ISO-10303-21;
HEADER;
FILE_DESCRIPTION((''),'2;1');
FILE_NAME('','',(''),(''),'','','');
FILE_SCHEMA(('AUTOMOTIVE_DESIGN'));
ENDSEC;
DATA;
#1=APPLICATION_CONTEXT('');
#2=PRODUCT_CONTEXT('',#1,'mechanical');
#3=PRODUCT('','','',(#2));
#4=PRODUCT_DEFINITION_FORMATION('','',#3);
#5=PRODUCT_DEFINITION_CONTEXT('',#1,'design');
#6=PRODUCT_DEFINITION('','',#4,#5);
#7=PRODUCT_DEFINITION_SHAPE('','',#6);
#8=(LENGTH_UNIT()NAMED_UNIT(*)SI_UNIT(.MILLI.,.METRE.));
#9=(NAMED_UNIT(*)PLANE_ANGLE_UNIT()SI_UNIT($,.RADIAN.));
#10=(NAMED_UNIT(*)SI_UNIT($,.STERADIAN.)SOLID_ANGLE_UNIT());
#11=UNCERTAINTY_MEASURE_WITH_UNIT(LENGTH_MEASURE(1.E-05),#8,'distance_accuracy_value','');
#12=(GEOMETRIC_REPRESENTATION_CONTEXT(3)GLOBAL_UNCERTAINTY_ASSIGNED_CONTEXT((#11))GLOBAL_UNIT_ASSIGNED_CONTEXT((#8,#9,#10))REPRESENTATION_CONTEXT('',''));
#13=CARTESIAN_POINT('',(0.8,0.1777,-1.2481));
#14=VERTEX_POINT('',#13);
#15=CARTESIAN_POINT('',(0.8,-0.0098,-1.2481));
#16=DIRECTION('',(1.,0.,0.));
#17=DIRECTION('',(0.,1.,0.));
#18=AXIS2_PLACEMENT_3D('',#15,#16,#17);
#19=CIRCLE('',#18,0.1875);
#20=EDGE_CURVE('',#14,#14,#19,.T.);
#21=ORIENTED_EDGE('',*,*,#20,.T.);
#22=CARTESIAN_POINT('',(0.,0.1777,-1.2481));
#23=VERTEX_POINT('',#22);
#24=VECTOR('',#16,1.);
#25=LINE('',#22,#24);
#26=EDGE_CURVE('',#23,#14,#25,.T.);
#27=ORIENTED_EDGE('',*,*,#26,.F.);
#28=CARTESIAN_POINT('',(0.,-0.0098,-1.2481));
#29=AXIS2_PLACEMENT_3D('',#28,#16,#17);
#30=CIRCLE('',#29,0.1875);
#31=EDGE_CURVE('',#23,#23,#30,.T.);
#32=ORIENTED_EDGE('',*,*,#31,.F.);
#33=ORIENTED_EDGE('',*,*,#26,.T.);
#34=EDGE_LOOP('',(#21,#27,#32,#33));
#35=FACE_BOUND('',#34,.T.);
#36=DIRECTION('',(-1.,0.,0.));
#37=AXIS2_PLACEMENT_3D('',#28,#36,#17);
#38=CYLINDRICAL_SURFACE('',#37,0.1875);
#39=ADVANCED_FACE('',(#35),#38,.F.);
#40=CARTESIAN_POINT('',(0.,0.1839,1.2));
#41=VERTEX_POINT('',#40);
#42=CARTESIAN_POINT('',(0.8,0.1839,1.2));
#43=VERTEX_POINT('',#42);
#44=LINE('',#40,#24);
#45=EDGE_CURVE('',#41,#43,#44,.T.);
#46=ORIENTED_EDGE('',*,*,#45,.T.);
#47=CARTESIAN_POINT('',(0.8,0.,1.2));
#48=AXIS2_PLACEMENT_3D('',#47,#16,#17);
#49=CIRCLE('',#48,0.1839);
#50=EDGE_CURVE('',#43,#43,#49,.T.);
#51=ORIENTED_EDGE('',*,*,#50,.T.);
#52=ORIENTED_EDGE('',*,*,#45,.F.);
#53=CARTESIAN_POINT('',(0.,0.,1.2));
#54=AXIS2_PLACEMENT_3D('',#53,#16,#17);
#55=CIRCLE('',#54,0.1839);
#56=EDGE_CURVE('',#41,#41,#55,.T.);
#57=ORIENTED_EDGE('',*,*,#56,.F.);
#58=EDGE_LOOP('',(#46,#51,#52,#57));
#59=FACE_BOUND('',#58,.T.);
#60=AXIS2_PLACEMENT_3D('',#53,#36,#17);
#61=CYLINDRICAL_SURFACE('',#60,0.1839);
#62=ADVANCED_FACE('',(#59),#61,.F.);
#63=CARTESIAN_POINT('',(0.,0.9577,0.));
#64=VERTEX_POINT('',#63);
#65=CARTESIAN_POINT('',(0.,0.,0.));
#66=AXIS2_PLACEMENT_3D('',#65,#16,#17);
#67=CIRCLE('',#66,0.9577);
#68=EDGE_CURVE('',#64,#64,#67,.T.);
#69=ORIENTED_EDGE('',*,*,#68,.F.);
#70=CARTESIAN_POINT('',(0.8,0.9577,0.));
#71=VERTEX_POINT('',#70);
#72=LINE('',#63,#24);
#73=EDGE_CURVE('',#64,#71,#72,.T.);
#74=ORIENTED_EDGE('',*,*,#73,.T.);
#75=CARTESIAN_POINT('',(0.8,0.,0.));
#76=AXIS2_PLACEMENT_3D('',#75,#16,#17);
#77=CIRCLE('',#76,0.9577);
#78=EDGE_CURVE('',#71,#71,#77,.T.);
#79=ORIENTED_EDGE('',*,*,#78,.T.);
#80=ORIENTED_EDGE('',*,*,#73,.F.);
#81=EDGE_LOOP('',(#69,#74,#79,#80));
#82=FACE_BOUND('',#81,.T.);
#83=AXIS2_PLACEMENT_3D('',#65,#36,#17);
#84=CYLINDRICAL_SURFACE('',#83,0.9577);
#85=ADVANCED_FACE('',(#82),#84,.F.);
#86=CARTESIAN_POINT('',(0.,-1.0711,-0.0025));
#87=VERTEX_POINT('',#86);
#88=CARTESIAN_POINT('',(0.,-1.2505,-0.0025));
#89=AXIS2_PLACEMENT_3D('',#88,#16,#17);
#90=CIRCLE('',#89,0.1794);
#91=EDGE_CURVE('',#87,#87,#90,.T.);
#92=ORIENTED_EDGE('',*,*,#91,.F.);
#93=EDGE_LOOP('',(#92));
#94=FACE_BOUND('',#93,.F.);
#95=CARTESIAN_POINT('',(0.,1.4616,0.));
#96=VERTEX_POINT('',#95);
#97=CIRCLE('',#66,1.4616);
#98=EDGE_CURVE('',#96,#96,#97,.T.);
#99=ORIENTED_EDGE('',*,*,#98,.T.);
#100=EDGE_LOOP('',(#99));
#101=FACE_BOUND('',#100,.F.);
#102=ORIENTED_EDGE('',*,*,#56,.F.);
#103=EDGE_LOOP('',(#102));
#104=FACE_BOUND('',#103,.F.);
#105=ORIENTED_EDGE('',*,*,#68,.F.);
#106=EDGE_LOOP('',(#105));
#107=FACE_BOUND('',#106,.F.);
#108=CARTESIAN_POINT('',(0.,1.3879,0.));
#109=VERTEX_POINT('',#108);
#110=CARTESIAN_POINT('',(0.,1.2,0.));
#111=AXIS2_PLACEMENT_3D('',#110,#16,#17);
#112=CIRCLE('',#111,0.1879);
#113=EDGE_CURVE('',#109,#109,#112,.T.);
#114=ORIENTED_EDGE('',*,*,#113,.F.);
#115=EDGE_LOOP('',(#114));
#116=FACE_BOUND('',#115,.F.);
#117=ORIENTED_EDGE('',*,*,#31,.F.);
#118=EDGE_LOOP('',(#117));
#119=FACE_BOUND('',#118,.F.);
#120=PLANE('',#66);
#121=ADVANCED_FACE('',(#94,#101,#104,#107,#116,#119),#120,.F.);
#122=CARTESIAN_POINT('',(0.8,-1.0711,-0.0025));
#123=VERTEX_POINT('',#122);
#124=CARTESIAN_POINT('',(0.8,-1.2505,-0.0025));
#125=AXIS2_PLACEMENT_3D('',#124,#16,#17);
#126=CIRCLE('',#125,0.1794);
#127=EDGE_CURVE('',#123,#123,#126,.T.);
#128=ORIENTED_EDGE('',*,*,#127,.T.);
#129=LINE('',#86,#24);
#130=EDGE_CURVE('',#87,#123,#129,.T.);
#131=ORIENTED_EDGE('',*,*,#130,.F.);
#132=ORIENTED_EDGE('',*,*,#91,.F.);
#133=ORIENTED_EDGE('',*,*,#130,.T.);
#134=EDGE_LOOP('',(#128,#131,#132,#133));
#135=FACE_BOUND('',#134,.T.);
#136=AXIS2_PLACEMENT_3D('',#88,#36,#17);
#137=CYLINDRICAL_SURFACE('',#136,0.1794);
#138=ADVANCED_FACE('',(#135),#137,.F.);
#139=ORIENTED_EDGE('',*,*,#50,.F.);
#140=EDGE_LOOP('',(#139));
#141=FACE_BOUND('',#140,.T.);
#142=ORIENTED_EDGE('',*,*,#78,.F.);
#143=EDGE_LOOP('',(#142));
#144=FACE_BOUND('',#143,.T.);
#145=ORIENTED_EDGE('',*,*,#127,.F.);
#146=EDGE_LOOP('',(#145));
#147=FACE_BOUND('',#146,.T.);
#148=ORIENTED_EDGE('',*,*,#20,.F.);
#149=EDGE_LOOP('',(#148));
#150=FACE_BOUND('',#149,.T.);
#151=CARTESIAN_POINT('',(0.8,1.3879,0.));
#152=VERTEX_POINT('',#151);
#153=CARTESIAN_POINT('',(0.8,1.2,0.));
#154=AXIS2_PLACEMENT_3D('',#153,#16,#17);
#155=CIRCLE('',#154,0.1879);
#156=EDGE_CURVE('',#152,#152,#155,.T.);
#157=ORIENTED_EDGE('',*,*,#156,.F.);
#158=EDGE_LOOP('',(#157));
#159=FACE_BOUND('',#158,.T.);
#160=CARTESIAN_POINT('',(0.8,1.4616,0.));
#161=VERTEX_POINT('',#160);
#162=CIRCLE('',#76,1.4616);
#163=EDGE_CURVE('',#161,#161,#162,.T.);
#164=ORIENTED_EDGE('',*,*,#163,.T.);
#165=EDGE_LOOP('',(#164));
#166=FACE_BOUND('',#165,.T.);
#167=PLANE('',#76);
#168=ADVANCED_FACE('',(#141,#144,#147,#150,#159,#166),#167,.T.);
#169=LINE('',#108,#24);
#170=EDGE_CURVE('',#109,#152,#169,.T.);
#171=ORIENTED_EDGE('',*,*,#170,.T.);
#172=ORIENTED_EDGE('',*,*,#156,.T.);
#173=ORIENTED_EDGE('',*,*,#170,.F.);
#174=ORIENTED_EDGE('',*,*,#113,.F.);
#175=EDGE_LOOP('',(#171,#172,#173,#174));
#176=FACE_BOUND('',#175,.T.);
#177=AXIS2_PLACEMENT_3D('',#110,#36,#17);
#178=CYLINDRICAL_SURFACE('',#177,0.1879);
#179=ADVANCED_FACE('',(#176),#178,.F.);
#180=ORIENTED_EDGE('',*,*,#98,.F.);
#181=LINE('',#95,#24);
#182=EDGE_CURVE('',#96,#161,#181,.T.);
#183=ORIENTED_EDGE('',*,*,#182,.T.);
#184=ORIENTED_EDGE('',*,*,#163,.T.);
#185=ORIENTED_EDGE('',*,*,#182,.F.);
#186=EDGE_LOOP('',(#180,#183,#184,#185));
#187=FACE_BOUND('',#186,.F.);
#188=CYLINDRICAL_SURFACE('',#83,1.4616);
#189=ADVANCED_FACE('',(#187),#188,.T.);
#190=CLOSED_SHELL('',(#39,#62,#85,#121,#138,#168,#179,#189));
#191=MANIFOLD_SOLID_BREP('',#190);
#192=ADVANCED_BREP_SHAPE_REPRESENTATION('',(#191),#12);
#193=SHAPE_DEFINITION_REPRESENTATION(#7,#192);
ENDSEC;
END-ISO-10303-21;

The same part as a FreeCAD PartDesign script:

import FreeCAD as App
import Part
import Sketcher

V = App.Vector

doc = App.newDocument("Part")
body = doc.addObject("PartDesign::Body", "Body")

# Sketch on YZ plane
sketch1 = doc.addObject("Sketcher::SketchObject", "Sketch")
body.addObject(sketch1)
sketch1.AttachmentSupport = (doc.YZ_Plane, [""])
sketch1.MapMode = "FlatFace"
sketch1.addGeometry([
    Part.Circle(V(0, 0, 0), V(0, 0, 1), 1.46),  # 0
    Part.Circle(V(-0.01, -1.25, 0), V(0, 0, 1), 0.19),  # 1
    Part.Circle(V(-1.25, 0, 0), V(0, 0, 1), 0.18),  # 2
    Part.Circle(V(0, 0, 0), V(0, 0, 1), 0.96),  # 3
    Part.Circle(V(1.2, 0, 0), V(0, 0, 1), 0.19),  # 4
    Part.Circle(V(0, 1.2, 0), V(0, 0, 1), 0.18),  # 5
], False)
sketch1.addConstraint([
    Sketcher.Constraint("Coincident", 0, 3, -1, 1),
    Sketcher.Constraint("Coincident", 3, 3, -1, 1),
    Sketcher.Constraint("PointOnObject", 4, 3, -1),
    Sketcher.Constraint("PointOnObject", 5, 3, -2),
    Sketcher.Constraint("Diameter", 1, 0.375),
    Sketcher.Constraint("Diameter", 0, 2.9232),
    Sketcher.Constraint("Diameter", 2, 0.3588),
    Sketcher.Constraint("Diameter", 3, 1.9154),
    Sketcher.Constraint("Diameter", 4, 0.3758),
    Sketcher.Constraint("Diameter", 5, 0.3678),
    Sketcher.Constraint("DistanceX", -1, 1, 4, 3, 1.2),
    Sketcher.Constraint("DistanceY", -1, 1, 5, 3, 1.2),
    Sketcher.Constraint("DistanceY", 1, 3, -1, 1, 1.248),
    Sketcher.Constraint("DistanceX", 1, 3, -1, 1, 0.0098),
    Sketcher.Constraint("DistanceX", 2, 3, -1, 1, 1.2505),
    Sketcher.Constraint("DistanceY", 2, 3, -1, 1, 0.0025),
])
pad1 = doc.addObject("PartDesign::Pad", "Pad")
body.addObject(pad1)
pad1.Profile = sketch1
pad1.Length = 0.8

doc.recompute()
